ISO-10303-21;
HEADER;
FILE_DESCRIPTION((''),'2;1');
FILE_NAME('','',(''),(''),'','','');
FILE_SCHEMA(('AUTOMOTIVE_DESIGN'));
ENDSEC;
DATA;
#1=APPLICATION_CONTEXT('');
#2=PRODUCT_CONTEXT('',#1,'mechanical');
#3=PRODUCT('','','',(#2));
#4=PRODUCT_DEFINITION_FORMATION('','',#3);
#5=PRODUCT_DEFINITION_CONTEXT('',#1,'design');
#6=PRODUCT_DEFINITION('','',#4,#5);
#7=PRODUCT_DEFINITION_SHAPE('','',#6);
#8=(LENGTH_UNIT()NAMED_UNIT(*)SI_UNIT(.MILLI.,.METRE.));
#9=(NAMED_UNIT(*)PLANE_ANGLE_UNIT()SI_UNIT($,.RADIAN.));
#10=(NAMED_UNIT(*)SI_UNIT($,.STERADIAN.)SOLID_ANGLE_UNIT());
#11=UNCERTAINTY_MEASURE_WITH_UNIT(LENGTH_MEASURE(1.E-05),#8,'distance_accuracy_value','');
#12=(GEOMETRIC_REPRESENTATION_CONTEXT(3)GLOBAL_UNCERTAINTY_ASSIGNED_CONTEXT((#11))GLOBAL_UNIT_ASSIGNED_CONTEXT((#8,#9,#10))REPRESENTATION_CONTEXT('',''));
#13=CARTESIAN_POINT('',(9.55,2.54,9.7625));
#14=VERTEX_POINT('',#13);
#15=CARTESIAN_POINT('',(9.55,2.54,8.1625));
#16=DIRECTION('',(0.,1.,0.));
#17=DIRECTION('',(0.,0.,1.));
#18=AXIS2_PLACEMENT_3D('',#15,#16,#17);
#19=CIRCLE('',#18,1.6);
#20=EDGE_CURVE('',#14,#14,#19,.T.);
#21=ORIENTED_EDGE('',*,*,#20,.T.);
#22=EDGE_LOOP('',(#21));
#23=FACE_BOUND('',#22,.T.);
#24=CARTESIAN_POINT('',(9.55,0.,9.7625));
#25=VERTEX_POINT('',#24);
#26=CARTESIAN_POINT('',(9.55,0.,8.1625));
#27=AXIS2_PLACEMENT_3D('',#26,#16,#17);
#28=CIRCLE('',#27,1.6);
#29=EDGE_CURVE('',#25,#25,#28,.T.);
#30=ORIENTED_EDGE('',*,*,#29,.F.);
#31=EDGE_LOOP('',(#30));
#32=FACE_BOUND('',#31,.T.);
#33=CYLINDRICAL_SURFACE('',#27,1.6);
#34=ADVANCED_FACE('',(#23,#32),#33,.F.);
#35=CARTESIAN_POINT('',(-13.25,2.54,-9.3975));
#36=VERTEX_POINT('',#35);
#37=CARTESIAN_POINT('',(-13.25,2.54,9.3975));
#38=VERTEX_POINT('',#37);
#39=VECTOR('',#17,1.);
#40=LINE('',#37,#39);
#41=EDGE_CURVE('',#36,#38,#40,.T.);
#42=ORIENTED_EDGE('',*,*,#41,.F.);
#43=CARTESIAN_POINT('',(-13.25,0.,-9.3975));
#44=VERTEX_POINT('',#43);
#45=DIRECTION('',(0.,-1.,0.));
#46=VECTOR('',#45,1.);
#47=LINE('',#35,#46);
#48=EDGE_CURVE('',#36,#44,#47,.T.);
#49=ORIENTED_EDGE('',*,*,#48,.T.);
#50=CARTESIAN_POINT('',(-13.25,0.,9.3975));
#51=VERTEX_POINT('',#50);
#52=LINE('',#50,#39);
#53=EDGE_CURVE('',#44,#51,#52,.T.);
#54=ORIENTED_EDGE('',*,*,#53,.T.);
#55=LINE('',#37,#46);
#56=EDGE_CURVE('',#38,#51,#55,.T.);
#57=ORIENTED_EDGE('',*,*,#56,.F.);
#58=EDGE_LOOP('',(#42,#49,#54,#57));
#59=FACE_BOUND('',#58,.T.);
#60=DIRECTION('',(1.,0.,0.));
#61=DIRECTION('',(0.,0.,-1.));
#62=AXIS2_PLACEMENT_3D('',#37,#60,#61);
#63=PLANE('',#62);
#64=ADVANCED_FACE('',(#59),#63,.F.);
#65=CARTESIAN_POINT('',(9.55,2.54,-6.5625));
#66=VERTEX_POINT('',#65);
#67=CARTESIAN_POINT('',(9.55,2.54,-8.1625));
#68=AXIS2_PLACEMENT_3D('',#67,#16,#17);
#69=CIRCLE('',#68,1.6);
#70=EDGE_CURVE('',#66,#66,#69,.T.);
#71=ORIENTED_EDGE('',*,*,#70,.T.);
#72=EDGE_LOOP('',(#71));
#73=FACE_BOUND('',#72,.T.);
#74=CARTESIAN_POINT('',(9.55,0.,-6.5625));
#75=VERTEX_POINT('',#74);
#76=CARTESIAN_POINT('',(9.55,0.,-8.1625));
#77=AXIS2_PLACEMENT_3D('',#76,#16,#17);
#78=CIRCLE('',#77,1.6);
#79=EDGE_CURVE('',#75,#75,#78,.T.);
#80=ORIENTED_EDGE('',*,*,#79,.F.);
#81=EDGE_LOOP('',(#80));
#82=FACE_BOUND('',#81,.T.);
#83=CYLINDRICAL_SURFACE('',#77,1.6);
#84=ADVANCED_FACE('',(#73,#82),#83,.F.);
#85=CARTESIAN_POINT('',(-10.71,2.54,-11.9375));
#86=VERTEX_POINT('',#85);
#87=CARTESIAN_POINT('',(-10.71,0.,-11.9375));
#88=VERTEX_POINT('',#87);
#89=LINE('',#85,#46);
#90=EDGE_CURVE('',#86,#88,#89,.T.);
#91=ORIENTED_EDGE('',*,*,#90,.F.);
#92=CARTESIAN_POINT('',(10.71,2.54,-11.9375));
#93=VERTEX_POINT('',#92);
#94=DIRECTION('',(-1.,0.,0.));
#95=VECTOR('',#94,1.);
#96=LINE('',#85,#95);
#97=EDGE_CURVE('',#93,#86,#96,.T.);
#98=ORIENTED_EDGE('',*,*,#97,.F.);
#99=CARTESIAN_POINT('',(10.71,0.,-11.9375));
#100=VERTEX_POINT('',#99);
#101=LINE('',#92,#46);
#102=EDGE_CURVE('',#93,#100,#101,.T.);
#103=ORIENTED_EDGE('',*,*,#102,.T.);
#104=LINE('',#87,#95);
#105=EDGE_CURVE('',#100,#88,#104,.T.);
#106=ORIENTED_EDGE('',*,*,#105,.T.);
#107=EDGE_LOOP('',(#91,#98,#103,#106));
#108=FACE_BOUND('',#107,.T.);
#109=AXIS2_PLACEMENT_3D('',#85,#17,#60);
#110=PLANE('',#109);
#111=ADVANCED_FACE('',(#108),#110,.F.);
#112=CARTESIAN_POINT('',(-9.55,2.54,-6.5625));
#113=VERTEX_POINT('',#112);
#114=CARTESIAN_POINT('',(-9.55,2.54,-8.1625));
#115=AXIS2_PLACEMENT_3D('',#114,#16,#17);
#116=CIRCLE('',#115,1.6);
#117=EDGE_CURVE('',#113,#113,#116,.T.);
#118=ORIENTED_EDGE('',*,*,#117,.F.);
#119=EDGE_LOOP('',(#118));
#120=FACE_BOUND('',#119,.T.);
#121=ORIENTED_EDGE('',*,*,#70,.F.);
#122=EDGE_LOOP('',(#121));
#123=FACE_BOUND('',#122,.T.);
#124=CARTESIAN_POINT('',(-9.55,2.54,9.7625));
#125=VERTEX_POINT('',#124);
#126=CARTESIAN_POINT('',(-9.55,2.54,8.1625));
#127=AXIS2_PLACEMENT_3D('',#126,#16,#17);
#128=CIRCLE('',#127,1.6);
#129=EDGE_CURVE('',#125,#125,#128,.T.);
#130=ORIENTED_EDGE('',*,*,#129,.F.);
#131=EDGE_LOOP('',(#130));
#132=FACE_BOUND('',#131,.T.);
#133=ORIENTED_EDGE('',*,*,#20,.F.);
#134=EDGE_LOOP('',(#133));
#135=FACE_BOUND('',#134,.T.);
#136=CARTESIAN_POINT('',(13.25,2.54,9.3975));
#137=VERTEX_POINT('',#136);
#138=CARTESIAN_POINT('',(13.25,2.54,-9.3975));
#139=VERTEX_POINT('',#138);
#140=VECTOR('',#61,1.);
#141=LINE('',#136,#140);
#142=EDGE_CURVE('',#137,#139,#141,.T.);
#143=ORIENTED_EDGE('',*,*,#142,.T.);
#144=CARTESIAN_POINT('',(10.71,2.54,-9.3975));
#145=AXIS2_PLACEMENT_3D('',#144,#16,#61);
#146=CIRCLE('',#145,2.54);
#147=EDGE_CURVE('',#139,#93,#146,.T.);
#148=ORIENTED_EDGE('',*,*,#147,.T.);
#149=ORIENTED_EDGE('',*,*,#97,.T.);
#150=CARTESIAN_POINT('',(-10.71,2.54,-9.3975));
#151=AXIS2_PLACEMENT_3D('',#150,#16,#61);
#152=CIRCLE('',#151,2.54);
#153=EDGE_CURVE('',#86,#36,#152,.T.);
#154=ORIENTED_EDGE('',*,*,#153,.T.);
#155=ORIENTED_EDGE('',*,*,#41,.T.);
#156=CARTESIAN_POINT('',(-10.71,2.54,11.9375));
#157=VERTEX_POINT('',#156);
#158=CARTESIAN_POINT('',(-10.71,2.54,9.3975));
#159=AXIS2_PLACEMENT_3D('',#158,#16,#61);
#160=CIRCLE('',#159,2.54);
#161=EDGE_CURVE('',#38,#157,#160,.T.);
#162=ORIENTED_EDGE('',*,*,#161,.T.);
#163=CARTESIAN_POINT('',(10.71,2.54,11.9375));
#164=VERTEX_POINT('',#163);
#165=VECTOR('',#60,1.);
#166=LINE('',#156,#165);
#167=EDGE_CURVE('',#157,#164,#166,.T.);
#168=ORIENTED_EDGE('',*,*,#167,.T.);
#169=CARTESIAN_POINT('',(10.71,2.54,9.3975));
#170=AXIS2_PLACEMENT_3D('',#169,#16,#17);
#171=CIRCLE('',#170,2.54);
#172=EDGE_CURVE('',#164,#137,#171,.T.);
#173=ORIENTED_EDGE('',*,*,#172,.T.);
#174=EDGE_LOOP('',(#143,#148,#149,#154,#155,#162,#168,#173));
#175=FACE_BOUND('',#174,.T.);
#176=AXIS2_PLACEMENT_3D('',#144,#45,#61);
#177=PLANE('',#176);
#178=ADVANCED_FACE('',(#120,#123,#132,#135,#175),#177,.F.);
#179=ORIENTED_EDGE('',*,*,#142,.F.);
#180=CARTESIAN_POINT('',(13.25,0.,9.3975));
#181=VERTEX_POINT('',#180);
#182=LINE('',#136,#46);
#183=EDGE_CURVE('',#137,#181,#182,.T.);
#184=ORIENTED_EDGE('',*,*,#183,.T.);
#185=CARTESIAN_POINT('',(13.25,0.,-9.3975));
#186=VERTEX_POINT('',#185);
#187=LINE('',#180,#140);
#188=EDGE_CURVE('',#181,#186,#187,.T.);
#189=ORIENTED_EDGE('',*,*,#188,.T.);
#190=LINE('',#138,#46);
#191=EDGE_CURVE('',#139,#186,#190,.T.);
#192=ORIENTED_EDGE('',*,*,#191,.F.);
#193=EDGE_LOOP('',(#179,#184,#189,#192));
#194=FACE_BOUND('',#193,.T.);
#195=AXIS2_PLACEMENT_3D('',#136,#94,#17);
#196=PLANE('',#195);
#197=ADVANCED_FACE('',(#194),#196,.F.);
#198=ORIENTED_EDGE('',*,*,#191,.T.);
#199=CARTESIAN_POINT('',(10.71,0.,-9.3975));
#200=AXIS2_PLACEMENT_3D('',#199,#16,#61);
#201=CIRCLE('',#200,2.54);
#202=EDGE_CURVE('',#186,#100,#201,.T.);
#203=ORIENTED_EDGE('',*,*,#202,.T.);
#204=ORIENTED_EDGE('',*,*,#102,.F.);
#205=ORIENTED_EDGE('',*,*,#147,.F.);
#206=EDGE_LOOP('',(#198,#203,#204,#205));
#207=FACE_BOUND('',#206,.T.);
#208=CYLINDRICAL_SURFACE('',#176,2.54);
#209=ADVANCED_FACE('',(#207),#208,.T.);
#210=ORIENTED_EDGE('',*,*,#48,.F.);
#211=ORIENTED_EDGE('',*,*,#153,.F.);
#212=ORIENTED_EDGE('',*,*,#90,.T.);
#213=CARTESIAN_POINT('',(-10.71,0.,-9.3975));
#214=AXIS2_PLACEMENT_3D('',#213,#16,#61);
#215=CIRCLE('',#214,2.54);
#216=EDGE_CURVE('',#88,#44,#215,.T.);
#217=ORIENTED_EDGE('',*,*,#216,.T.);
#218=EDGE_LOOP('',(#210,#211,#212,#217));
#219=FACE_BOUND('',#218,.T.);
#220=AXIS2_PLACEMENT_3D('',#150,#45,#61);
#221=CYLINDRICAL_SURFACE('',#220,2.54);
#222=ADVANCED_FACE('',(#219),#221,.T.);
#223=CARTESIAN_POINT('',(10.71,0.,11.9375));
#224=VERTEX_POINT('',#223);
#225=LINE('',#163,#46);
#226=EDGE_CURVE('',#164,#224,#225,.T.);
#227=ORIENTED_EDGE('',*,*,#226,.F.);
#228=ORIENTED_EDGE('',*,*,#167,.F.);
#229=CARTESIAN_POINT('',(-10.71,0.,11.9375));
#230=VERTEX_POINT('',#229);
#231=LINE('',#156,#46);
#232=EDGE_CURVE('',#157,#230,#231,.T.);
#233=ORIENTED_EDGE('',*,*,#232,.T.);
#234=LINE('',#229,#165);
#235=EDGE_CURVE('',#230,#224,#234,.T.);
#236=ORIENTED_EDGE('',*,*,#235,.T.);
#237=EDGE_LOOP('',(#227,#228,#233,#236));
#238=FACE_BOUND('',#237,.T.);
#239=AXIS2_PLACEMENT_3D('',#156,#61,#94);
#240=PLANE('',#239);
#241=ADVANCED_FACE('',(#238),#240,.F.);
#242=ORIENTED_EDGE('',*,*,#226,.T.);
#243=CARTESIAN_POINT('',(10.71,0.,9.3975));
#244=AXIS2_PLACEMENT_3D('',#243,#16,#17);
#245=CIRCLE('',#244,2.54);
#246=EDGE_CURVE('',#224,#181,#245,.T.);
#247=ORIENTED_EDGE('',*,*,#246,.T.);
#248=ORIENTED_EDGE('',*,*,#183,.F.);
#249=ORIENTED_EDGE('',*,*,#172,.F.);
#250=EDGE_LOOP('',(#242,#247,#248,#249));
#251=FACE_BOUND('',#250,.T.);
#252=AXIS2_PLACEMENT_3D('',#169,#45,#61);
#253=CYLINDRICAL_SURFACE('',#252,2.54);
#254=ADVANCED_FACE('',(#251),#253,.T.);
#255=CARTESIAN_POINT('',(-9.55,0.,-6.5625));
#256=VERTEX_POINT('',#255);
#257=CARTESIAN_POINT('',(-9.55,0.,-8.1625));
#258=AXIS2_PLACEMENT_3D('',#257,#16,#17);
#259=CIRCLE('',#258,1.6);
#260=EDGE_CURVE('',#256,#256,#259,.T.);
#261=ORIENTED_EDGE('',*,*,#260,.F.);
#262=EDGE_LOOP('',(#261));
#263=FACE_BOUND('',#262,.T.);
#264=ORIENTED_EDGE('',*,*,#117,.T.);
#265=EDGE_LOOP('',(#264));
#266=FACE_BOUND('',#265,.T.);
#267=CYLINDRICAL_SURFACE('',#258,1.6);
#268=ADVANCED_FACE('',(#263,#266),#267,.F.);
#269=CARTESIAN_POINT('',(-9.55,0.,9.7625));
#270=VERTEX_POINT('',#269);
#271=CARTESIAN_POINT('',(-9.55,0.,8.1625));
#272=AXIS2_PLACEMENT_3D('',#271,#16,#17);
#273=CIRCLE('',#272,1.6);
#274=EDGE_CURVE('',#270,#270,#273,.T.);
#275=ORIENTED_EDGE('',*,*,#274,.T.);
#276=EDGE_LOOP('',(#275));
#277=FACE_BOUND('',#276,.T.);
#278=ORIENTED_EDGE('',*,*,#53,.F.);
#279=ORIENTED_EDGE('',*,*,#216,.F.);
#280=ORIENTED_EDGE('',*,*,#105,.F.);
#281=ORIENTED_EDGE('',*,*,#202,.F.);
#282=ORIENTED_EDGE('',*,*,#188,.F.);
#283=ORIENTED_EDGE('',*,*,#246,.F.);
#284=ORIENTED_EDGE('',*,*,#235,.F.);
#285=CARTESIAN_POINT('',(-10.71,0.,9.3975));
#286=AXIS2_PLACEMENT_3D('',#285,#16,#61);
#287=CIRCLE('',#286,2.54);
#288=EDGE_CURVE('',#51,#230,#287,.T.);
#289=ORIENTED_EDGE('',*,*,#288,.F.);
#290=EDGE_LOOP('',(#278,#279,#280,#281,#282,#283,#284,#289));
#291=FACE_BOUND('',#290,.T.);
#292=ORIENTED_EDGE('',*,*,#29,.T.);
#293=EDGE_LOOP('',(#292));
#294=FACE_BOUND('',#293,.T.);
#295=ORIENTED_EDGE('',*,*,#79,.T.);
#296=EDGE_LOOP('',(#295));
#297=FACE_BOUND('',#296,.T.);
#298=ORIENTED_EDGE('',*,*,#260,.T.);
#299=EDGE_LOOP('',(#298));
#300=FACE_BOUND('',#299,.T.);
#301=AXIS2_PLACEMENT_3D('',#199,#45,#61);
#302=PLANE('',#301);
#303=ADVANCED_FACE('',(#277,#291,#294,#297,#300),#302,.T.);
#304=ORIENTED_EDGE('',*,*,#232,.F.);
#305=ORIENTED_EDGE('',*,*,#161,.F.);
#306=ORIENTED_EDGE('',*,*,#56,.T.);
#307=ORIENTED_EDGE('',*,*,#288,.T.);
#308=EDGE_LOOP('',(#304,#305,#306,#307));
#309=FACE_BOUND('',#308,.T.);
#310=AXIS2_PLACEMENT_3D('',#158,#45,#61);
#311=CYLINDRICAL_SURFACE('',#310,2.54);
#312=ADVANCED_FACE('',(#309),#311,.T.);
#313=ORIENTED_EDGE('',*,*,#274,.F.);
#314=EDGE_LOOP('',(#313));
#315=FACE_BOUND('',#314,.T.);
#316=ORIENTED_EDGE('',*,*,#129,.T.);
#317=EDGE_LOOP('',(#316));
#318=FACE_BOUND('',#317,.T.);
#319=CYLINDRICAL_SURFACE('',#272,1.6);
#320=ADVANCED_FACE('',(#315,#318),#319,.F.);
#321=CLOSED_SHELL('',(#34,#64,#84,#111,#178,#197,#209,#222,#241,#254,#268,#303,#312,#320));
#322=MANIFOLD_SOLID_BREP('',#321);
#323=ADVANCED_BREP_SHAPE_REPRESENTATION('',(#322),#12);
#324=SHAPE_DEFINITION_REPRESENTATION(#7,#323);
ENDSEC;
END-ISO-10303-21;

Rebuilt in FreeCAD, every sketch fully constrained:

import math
import FreeCAD as App
import Part
import Sketcher
from FreeCAD import Vector
Q = App.Units.Quantity

doc = App.newDocument("Part")
body = doc.addObject("PartDesign::Body", "Body")

# Sketch on XZ plane
sketch1 = doc.addObject("Sketcher::SketchObject", "Sketch")
body.addObject(sketch1)
sketch1.AttachmentSupport = (doc.XZ_Plane, [""])
sketch1.MapMode = "FlatFace"
sketch1.addGeometry([
    Part.LineSegment(Vector(-10.7, 11.9, 0), Vector(10.7, 11.9, 0)),  # 0
    Part.ArcOfCircle(Part.Circle(Vector(10.7, 9.4, 0), Vector(0, 0, 1), 2.5), math.radians(0), math.radians(90)),  # 1
    Part.LineSegment(Vector(13.2, 9.4, 0), Vector(13.2, -9.4, 0)),  # 2
    Part.ArcOfCircle(Part.Circle(Vector(10.7, -9.4, 0), Vector(0, 0, 1), 2.5), math.radians(-90), math.radians(0)),  # 3
    Part.LineSegment(Vector(10.7, -11.9, 0), Vector(-10.7, -11.9, 0)),  # 4
    Part.ArcOfCircle(Part.Circle(Vector(-10.7, -9.4, 0), Vector(0, 0, 1), 2.5), math.radians(-180), math.radians(-90)),  # 5
    Part.LineSegment(Vector(-13.3, -9.4, 0), Vector(-13.3, 9.4, 0)),  # 6
    Part.ArcOfCircle(Part.Circle(Vector(-10.7, 9.4, 0), Vector(0, 0, 1), 2.5), math.radians(90), math.radians(180)),  # 7
], False)
sketch1.addConstraint([
    Sketcher.Constraint("Tangent", 0, 2, 1, 2),
    Sketcher.Constraint("Tangent", 1, 1, 2, 1),
    Sketcher.Constraint("Tangent", 2, 2, 3, 2),
    Sketcher.Constraint("Tangent", 3, 1, 4, 1),
    Sketcher.Constraint("Tangent", 4, 2, 5, 2),
    Sketcher.Constraint("Tangent", 5, 1, 6, 1),
    Sketcher.Constraint("Tangent", 6, 2, 7, 2),
    Sketcher.Constraint("Tangent", 7, 1, 0, 1),
    Sketcher.Constraint("Horizontal", 0),
    Sketcher.Constraint("Vertical", 2),
    Sketcher.Constraint("Horizontal", 4),
    Sketcher.Constraint("Vertical", 6),
    Sketcher.Constraint("Equal", 1, 3),
    Sketcher.Constraint("Equal", 3, 5),
    Sketcher.Constraint("Equal", 5, 7),
    Sketcher.Constraint("Symmetric", 1, 3, 5, 3, -1, 1),
    Sketcher.Constraint("Radius", 1, Q("0.1 in")),
    Sketcher.Constraint("DistanceX", 0, 1, 0, 2, Q("21.42 mm")),
    Sketcher.Constraint("DistanceY", 2, 2, 2, 1, Q("18.795 mm")),
])
pad1 = doc.addObject("PartDesign::Pad", "Pad")
body.addObject(pad1)
pad1.Profile = sketch1
pad1.Length = Q("0.1 in")
pad1.Reversed = True

# Sketch on XZ plane
sketch2 = doc.addObject("Sketcher::SketchObject", "Sketch001")
body.addObject(sketch2)
sketch2.AttachmentSupport = (doc.XZ_Plane, [""])
sketch2.MapMode = "FlatFace"
sketch2.AttachmentOffset = App.Placement(Vector(0, 0, -0.1 * 25.4), App.Rotation())
sketch2.addGeometry([
    Part.Circle(Vector(-9.5, -8.2, 0), Vector(0, 0, 1), 1.6),
    Part.Circle(Vector(9.6, -8.2, 0), Vector(0, 0, 1), 1.6),
    Part.Circle(Vector(9.6, 8.2, 0), Vector(0, 0, 1), 1.6),
    Part.Circle(Vector(-9.5, 8.2, 0), Vector(0, 0, 1), 1.6),
], False)
sketch2.addConstraint([
    Sketcher.Constraint("Equal", 0, 1),
    Sketcher.Constraint("Equal", 1, 2),
    Sketcher.Constraint("Equal", 2, 3),
    Sketcher.Constraint("Symmetric", 0, 3, 2, 3, -1, 1),
    Sketcher.Constraint("Symmetric", 1, 3, 3, 3, -1, 1),
    Sketcher.Constraint("Symmetric", 0, 3, 1, 3, -2),
    Sketcher.Constraint("Diameter", 0, Q("3.2 mm")),
    Sketcher.Constraint("DistanceX", 0, 3, -1, 1, Q("9.55 mm")),
    Sketcher.Constraint("DistanceY", 0, 3, -1, 1, Q("8.1625 mm")),
])
pocket1 = doc.addObject("PartDesign::Pocket", "Pocket")
body.addObject(pocket1)
pocket1.Profile = sketch2
pocket1.Type = "ThroughAll"
pocket1.Reversed = True

doc.recompute()
